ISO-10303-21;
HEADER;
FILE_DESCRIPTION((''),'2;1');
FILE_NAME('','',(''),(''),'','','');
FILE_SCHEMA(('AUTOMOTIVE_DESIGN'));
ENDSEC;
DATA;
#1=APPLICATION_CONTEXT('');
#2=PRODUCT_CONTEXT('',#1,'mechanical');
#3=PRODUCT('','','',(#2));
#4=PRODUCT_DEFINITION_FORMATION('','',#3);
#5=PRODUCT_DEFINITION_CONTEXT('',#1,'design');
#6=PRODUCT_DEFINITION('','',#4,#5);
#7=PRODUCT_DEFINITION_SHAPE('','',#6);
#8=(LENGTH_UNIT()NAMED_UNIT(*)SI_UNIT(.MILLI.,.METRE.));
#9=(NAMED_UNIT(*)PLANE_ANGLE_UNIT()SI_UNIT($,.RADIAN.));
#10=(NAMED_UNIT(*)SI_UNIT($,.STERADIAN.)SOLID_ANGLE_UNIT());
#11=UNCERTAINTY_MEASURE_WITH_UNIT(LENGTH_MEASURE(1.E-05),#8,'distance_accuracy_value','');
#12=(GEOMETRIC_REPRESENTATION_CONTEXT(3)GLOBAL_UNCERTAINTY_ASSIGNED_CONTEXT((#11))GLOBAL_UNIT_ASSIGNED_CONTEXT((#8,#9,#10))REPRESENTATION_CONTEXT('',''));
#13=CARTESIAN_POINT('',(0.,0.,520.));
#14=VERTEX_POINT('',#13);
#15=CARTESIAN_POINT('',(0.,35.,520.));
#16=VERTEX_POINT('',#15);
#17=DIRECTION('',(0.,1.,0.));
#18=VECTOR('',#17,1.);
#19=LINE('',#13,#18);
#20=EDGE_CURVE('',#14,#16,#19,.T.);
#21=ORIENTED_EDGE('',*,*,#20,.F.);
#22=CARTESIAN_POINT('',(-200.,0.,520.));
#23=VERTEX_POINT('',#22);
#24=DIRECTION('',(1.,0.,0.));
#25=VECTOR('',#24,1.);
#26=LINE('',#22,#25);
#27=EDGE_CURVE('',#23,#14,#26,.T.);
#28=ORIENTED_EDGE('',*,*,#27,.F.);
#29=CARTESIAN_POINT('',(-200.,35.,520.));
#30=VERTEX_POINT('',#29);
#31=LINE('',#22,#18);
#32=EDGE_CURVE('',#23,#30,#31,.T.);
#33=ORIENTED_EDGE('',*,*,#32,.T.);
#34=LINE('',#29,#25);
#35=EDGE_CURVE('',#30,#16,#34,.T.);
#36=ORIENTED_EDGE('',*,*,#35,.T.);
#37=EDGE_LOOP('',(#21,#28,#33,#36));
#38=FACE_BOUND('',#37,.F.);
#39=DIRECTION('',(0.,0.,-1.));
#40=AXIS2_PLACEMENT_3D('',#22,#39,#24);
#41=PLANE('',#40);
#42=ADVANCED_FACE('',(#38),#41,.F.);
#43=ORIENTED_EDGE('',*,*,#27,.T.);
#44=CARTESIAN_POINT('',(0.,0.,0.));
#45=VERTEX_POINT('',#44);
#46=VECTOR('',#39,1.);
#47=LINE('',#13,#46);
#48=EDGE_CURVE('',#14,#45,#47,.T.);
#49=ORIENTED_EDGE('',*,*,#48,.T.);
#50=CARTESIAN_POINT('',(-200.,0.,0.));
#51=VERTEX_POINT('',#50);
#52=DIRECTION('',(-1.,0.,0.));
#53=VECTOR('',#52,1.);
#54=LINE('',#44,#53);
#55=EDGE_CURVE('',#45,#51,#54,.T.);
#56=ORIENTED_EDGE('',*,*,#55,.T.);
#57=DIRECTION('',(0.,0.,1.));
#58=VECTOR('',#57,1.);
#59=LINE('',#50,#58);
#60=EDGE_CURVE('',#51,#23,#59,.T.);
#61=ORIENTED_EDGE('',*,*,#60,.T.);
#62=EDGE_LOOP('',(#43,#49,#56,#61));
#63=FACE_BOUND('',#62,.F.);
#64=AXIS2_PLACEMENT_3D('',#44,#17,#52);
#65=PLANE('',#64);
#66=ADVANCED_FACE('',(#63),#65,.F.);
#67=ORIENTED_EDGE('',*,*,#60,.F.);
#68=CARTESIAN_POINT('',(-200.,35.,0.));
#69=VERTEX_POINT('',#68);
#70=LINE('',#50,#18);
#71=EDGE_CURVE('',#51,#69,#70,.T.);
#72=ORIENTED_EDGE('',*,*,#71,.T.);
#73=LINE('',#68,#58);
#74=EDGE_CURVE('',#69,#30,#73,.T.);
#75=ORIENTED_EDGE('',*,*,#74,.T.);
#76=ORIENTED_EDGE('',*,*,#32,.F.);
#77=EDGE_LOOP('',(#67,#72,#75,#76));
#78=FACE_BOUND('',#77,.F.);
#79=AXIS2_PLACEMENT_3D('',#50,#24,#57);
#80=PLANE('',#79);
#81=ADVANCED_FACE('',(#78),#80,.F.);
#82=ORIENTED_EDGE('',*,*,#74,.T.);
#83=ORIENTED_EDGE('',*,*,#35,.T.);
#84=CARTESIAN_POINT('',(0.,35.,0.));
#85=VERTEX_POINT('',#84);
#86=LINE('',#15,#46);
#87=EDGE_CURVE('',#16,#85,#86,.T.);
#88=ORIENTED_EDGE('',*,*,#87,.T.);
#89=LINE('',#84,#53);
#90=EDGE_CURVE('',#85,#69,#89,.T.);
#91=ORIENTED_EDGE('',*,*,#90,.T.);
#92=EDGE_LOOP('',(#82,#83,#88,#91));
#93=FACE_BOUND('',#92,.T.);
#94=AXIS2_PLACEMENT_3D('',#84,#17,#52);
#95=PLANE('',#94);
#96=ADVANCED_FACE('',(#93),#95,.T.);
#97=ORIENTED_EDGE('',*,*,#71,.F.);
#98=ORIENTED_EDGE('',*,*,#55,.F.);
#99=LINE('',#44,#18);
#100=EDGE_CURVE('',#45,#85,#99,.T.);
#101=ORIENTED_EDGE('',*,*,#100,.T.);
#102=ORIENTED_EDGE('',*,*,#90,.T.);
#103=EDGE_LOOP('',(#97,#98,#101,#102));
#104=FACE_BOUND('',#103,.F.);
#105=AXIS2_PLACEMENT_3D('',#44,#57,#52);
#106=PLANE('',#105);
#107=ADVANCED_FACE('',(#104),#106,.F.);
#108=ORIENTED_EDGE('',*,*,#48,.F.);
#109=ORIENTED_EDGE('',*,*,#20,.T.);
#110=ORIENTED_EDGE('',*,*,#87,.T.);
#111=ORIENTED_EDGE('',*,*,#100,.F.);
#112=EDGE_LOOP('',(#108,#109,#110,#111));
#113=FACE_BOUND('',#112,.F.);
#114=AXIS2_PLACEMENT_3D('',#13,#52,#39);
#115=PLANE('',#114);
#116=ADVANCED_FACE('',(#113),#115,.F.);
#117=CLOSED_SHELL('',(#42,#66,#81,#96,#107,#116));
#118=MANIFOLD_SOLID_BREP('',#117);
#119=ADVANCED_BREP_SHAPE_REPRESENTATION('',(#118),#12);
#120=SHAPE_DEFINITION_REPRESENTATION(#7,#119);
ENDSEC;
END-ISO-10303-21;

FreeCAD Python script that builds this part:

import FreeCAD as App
import Part
import Sketcher
from FreeCAD import Vector

doc = App.newDocument("Part")
body = doc.addObject("PartDesign::Body", "Body")

sketch1 = body.newObject("Sketcher::SketchObject", "Sketch")
sketch1.AttachmentSupport = (doc.getObject("XZ_Plane"), [""])
sketch1.MapMode = "FlatFace"
sketch1.addGeometry([
    Part.LineSegment(Vector(0, 520, 0), Vector(0, 0, 0)),
    Part.LineSegment(Vector(0, 0, 0), Vector(-200, 0, 0)),
    Part.LineSegment(Vector(-200, 0, 0), Vector(-200, 520, 0)),
    Part.LineSegment(Vector(-200, 520, 0), Vector(0, 520, 0)),
], False)
sketch1.addConstraint([
    Sketcher.Constraint("Coincident", 0, 2, 1, 1),
    Sketcher.Constraint("Coincident", 1, 2, 2, 1),
    Sketcher.Constraint("Coincident", 2, 2, 3, 1),
    Sketcher.Constraint("Coincident", 3, 2, 0, 1),
    Sketcher.Constraint("Vertical", 0),
    Sketcher.Constraint("Horizontal", 1),
    Sketcher.Constraint("Vertical", 2),
    Sketcher.Constraint("Horizontal", 3),
    Sketcher.Constraint("Coincident", 0, 2, -1, 1),
    Sketcher.Constraint("DistanceX", 1, 2, 1, 1, 200.0),
    Sketcher.Constraint("DistanceY", 0, 2, 0, 1, 520.0),
])
pad1 = body.newObject("PartDesign::Pad", "Pad")
pad1.Profile = sketch1
pad1.Length = 35
pad1.Reversed = True

doc.recompute()
